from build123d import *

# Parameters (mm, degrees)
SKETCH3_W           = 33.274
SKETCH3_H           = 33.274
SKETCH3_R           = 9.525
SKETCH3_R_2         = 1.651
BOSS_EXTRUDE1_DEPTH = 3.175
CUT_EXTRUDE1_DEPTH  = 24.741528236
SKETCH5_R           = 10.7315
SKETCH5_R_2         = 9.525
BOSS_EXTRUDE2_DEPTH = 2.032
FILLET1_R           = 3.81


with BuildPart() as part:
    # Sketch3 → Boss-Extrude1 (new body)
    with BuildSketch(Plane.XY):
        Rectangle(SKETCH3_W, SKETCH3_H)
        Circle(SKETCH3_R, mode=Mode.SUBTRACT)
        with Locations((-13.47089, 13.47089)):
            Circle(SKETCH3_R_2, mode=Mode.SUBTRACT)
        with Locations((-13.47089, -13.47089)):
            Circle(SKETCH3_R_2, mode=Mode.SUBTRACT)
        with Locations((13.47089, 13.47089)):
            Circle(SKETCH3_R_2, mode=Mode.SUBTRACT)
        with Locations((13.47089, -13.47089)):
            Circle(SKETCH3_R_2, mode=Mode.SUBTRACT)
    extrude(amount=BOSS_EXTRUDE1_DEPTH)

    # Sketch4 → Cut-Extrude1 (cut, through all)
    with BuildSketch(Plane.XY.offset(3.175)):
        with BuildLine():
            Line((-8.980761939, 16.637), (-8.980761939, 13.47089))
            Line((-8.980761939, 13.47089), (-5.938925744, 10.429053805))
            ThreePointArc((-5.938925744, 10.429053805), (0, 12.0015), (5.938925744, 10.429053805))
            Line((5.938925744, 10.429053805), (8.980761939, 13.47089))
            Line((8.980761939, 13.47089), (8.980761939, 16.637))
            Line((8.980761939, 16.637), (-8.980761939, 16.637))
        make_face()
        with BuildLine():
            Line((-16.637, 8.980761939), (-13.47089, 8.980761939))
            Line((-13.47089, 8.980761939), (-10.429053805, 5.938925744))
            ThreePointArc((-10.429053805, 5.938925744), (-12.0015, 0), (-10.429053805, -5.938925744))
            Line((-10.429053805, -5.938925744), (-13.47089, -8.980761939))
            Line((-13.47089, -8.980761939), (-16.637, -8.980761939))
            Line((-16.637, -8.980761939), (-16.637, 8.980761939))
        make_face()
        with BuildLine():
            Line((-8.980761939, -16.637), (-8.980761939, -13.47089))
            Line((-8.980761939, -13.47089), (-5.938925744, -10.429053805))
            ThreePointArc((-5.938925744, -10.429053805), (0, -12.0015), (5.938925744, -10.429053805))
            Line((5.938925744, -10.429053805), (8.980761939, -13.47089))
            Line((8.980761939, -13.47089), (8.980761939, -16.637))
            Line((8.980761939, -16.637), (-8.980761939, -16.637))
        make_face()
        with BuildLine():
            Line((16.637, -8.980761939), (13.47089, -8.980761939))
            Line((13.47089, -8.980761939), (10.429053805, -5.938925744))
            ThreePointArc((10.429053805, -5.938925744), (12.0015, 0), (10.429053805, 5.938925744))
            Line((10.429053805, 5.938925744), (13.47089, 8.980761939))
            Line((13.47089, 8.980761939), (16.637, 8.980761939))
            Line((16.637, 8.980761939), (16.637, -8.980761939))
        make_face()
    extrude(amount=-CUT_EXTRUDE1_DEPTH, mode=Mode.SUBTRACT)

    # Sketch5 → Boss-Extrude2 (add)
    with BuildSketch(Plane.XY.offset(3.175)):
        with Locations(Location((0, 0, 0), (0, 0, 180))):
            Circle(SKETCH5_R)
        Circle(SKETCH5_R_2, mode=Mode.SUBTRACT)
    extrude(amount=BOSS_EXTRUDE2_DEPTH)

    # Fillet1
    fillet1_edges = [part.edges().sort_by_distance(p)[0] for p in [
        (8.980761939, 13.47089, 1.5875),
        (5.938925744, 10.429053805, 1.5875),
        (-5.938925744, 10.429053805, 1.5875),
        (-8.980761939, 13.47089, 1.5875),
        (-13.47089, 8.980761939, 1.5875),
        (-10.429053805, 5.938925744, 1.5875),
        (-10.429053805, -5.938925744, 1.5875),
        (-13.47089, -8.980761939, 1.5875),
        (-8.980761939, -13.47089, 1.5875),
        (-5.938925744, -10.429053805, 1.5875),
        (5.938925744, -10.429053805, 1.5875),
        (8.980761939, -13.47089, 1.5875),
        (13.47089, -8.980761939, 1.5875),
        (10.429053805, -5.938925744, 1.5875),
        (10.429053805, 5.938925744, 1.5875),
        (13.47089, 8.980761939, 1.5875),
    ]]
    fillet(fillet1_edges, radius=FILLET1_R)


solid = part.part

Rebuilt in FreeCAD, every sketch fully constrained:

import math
import FreeCAD as App
import Part
import Sketcher
from FreeCAD import Vector
Q = App.Units.Quantity


def edges_at(feature, points):
    """Names of the edges that pass closest to the given points."""
    edges = feature.Shape.Edges
    near = lambda p: min(range(len(edges)), key=lambda i: edges[i].distToShape(Part.Vertex(*p))[0])
    return sorted({f"Edge{near(p) + 1}" for p in points})


def add_polygon(sketch, points):
    """Adds a closed chain of lines whose ends are joined by coincident constraints."""
    first, n = sketch.GeometryCount, len(points)
    for a, b in zip(points, points[1:] + points[:1]):
        sketch.addGeometry(Part.LineSegment(App.Vector(*a, 0), App.Vector(*b, 0)), False)
    for i in range(n):
        sketch.addConstraint(Sketcher.Constraint("Coincident", first + i, 2, first + (i + 1) % n, 1))

doc = App.newDocument("Part")
body = doc.addObject("PartDesign::Body", "Body")

sketch1 = body.newObject("Sketcher::SketchObject", "Sketch")
sketch1.AttachmentSupport = (doc.getObject("XY_Plane"), [""])
sketch1.MapMode = "FlatFace"
add_polygon(sketch1, [(-16.637, 16.637), (-16.637, -16.637), (16.637, -16.637), (16.637, 16.637)])
sketch1.addGeometry(Part.Circle(Vector(-13.47089, -13.47089, 0), Vector(0, 0, 1), 1.651), False)
sketch1.addGeometry(Part.Circle(Vector(13.47089, -13.47089, 0), Vector(0, 0, 1), 1.651), False)
sketch1.addGeometry(Part.Circle(Vector(-13.47089, 13.47089, 0), Vector(0, 0, 1), 1.651), False)
sketch1.addGeometry(Part.Circle(Vector(0, 0, 0), Vector(0, 0, 1), 9.525), False)
sketch1.addGeometry(Part.Circle(Vector(13.47089, 13.47089, 0), Vector(0, 0, 1), 1.651), False)
sketch1.addConstraint([
    Sketcher.Constraint("Vertical", 0),
    Sketcher.Constraint("Horizontal", 1),
    Sketcher.Constraint("Vertical", 2),
    Sketcher.Constraint("Horizontal", 3),
    Sketcher.Constraint("Coincident", 7, 3, -1, 1),
    Sketcher.Constraint("Equal", 4, 5),
    Sketcher.Constraint("Equal", 5, 6),
    Sketcher.Constraint("Equal", 6, 8),
    Sketcher.Constraint("Symmetric", 5, 3, 6, 3, -1, 1),
    Sketcher.Constraint("Symmetric", 4, 3, 8, 3, -1, 1),
    Sketcher.Constraint("Symmetric", 0, 2, 2, 2, -1, 1),
    Sketcher.Constraint("Symmetric", 4, 3, 5, 3, -2),
    Sketcher.Constraint("Equal", 3, 0),
    Sketcher.Constraint("Diameter", 4, Q("0.13 in")),
    Sketcher.Constraint("Diameter", 7, Q("0.75 in")),
    Sketcher.Constraint("DistanceX", 1, 1, 1, 2, Q("1.31 in")),
    Sketcher.Constraint("DistanceX", 4, 3, 5, 3, Q("1.0607 in")),
    Sketcher.Constraint("DistanceY", 4, 3, 6, 3, Q("1.0607 in")),
])
pad1 = body.newObject("PartDesign::Pad", "Pad")
pad1.Profile = sketch1
pad1.Length = Q("0.125 in")

sketch2 = body.newObject("Sketcher::SketchObject", "Sketch001")
sketch2.AttachmentSupport = (doc.getObject("XY_Plane"), [""])
sketch2.MapMode = "FlatFace"
sketch2.AttachmentOffset = App.Placement(Vector(0, 0, 0.125 * 25.4), App.Rotation())
sketch2.addGeometry([
    Part.LineSegment(Vector(-8.980762, 16.637, 0), Vector(-8.980762, 13.47089, 0)),
    Part.LineSegment(Vector(-8.980762, 13.47089, 0), Vector(-5.938926, 10.429054, 0)),
    Part.ArcOfCircle(Part.Circle(Vector(0, 0, 0), Vector(0, 0, 1), 12.0015), math.radians(60.340231), math.radians(119.659769)),
    Part.LineSegment(Vector(5.938926, 10.429054, 0), Vector(8.980762, 13.47089, 0)),
    Part.LineSegment(Vector(8.980762, 13.47089, 0), Vector(8.980762, 16.637, 0)),
    Part.LineSegment(Vector(8.980762, 16.637, 0), Vector(-8.980762, 16.637, 0)),
    Part.LineSegment(Vector(-13.47089, 8.980762, 0), Vector(-16.637, 8.980762, 0)),
    Part.LineSegment(Vector(-16.637, 8.980762, 0), Vector(-16.637, -8.980762, 0)),
    Part.LineSegment(Vector(-16.637, -8.980762, 0), Vector(-13.47089, -8.980762, 0)),
    Part.LineSegment(Vector(-13.47089, -8.980762, 0), Vector(-10.429054, -5.938926, 0)),
    Part.ArcOfCircle(Part.Circle(Vector(0, 0, 0), Vector(0, 0, 1), 12.0015), math.radians(150.340231), math.radians(209.659769)),
    Part.LineSegment(Vector(-10.429054, 5.938926, 0), Vector(-13.47089, 8.980762, 0)),
    Part.LineSegment(Vector(-8.980762, -13.47089, 0), Vector(-8.980762, -16.637, 0)),
    Part.LineSegment(Vector(-8.980762, -16.637, 0), Vector(8.980762, -16.637, 0)),
    Part.LineSegment(Vector(8.980762, -16.637, 0), Vector(8.980762, -13.47089, 0)),
    Part.LineSegment(Vector(8.980762, -13.47089, 0), Vector(5.938926, -10.429054, 0)),
    Part.ArcOfCircle(Part.Circle(Vector(0, 0, 0), Vector(0, 0, 1), 12.0015), math.radians(-119.659769), math.radians(-60.340231)),
    Part.LineSegment(Vector(-5.938926, -10.429054, 0), Vector(-8.980762, -13.47089, 0)),
    Part.LineSegment(Vector(13.47089, -8.980762, 0), Vector(16.637, -8.980762, 0)),
    Part.LineSegment(Vector(16.637, -8.980762, 0), Vector(16.637, 8.980762, 0)),
    Part.LineSegment(Vector(16.637, 8.980762, 0), Vector(13.47089, 8.980762, 0)),
    Part.LineSegment(Vector(13.47089, 8.980762, 0), Vector(10.429054, 5.938926, 0)),
    Part.ArcOfCircle(Part.Circle(Vector(0, 0, 0), Vector(0, 0, 1), 12.0015), math.radians(-29.659769), math.radians(29.659769)),
    Part.LineSegment(Vector(10.429054, -5.938926, 0), Vector(13.47089, -8.980762, 0)),
], False)
sketch2.addConstraint([
    Sketcher.Constraint("Coincident", 0, 2, 1, 1),
    Sketcher.Constraint("Coincident", 1, 2, 2, 2),
    Sketcher.Constraint("Coincident", 2, 1, 3, 1),
    Sketcher.Constraint("Coincident", 3, 2, 4, 1),
    Sketcher.Constraint("Coincident", 4, 2, 5, 1),
    Sketcher.Constraint("Coincident", 5, 2, 0, 1),
    Sketcher.Constraint("Coincident", 6, 2, 7, 1),
    Sketcher.Constraint("Coincident", 7, 2, 8, 1),
    Sketcher.Constraint("Coincident", 8, 2, 9, 1),
    Sketcher.Constraint("Coincident", 9, 2, 10, 2),
    Sketcher.Constraint("Coincident", 10, 1, 11, 1),
    Sketcher.Constraint("Coincident", 11, 2, 6, 1),
    Sketcher.Constraint("Coincident", 12, 2, 13, 1),
    Sketcher.Constraint("Coincident", 13, 2, 14, 1),
    Sketcher.Constraint("Coincident", 14, 2, 15, 1),
    Sketcher.Constraint("Coincident", 15, 2, 16, 2),
    Sketcher.Constraint("Coincident", 16, 1, 17, 1),
    Sketcher.Constraint("Coincident", 17, 2, 12, 1),
    Sketcher.Constraint("Coincident", 18, 2, 19, 1),
    Sketcher.Constraint("Coincident", 19, 2, 20, 1),
    Sketcher.Constraint("Coincident", 20, 2, 21, 1),
    Sketcher.Constraint("Coincident", 21, 2, 22, 2),
    Sketcher.Constraint("Coincident", 22, 1, 23, 1),
    Sketcher.Constraint("Coincident", 23, 2, 18, 1),
    Sketcher.Constraint("Vertical", 0),
    Sketcher.Constraint("Vertical", 4),
    Sketcher.Constraint("Horizontal", 5),
    Sketcher.Constraint("Horizontal", 6),
    Sketcher.Constraint("Vertical", 7),
    Sketcher.Constraint("Horizontal", 8),
    Sketcher.Constraint("Vertical", 12),
    Sketcher.Constraint("Horizontal", 13),
    Sketcher.Constraint("Vertical", 14),
    Sketcher.Constraint("Horizontal", 18),
    Sketcher.Constraint("Vertical", 19),
    Sketcher.Constraint("Horizontal", 20),
    Sketcher.Constraint("Coincident", 2, 3, -1, 1),
    Sketcher.Constraint("Coincident", 10, 3, -1, 1),
    Sketcher.Constraint("Coincident", 16, 3, -1, 1),
    Sketcher.Constraint("Coincident", 22, 3, -1, 1),
    Sketcher.Constraint("Equal", 2, 10),
    Sketcher.Constraint("Equal", 10, 16),
    Sketcher.Constraint("Equal", 16, 22),
    Sketcher.Constraint("Symmetric", 4, 2, 12, 2, -1, 1),
    Sketcher.Constraint("Symmetric", 0, 2, 14, 2, -1, 1),
    Sketcher.Constraint("Symmetric", 6, 2, 18, 2, -1, 1),
    Sketcher.Constraint("Symmetric", 8, 2, 20, 2, -1, 1),
    Sketcher.Constraint("Symmetric", 0, 2, 3, 2, -2),
    Sketcher.Constraint("Symmetric", 11, 2, 20, 2, -2),
    Sketcher.Constraint("Perpendicular", 1, 3),
    Sketcher.Constraint("Parallel", 3, 9),
    Sketcher.Constraint("Perpendicular", 9, 11),
    Sketcher.Constraint("Parallel", 11, 15),
    Sketcher.Constraint("Perpendicular", 15, 17),
    Sketcher.Constraint("Parallel", 17, 21),
    Sketcher.Constraint("Perpendicular", 21, 23),
    Sketcher.Constraint("Horizontal", 1, 2, 2, 1),
    Sketcher.Constraint("Horizontal", 15, 2, 16, 1),
    Sketcher.Constraint("Horizontal", 9, 2, 22, 1),
    Sketcher.Constraint("Equal", 20, 0),
    Sketcher.Constraint("Equal", 13, 7),
    Sketcher.Constraint("Equal", 3, 9),
    Sketcher.Constraint("Radius", 2, Q("0.4725 in")),
    Sketcher.Constraint("DistanceY", -1, 1, 4, 2, Q("0.655 in")),
    Sketcher.Constraint("DistanceX", 6, 2, 6, 1, 3.16611),
    Sketcher.Constraint("DistanceX", 5, 2, 5, 1, 17.961524),
])
pocket1 = body.newObject("PartDesign::Pocket", "Pocket")
pocket1.Profile = sketch2
pocket1.Type = "ThroughAll"

sketch3 = body.newObject("Sketcher::SketchObject", "Sketch002")
sketch3.AttachmentSupport = (doc.getObject("XY_Plane"), [""])
sketch3.MapMode = "FlatFace"
sketch3.AttachmentOffset = App.Placement(Vector(0, 0, 0.125 * 25.4), App.Rotation())
sketch3.addGeometry([
    Part.Circle(Vector(0, 0, 0), Vector(0, 0, 1), 10.7315),
    Part.Circle(Vector(0, 0, 0), Vector(0, 0, 1), 9.525),
], False)
sketch3.addConstraint([
    Sketcher.Constraint("Coincident", 0, 3, -1, 1),
    Sketcher.Constraint("Coincident", 1, 3, -1, 1),
    Sketcher.Constraint("Diameter", 1, Q("0.75 in")),
    Sketcher.Constraint("Diameter", 0, Q("0.845 in")),
])
pad2 = body.newObject("PartDesign::Pad", "Pad001")
pad2.Profile = sketch3
pad2.Length = Q("0.08 in")
doc.recompute()

fillet = body.newObject("PartDesign::Fillet", "Fillet")
fillet.Base = (pad2, edges_at(pad2, [
    (8.981, 13.471, 1.587),
    (5.939, 10.429, 1.587),
    (-5.939, 10.429, 1.587),
    (-8.981, 13.471, 1.587),
    (-13.471, 8.981, 1.587),
    (-10.429, 5.939, 1.587),
    (-10.429, -5.939, 1.587),
    (-13.471, -8.981, 1.587),
    (-8.981, -13.471, 1.587),
    (-5.939, -10.429, 1.587),
    (5.939, -10.429, 1.587),
    (8.981, -13.471, 1.587),
    (13.471, -8.981, 1.587),
    (10.429, -5.939, 1.587),
    (10.429, 5.939, 1.587),
    (13.471, 8.981, 1.587),
]))
fillet.Radius = Q("0.15 in")

doc.recompute()
